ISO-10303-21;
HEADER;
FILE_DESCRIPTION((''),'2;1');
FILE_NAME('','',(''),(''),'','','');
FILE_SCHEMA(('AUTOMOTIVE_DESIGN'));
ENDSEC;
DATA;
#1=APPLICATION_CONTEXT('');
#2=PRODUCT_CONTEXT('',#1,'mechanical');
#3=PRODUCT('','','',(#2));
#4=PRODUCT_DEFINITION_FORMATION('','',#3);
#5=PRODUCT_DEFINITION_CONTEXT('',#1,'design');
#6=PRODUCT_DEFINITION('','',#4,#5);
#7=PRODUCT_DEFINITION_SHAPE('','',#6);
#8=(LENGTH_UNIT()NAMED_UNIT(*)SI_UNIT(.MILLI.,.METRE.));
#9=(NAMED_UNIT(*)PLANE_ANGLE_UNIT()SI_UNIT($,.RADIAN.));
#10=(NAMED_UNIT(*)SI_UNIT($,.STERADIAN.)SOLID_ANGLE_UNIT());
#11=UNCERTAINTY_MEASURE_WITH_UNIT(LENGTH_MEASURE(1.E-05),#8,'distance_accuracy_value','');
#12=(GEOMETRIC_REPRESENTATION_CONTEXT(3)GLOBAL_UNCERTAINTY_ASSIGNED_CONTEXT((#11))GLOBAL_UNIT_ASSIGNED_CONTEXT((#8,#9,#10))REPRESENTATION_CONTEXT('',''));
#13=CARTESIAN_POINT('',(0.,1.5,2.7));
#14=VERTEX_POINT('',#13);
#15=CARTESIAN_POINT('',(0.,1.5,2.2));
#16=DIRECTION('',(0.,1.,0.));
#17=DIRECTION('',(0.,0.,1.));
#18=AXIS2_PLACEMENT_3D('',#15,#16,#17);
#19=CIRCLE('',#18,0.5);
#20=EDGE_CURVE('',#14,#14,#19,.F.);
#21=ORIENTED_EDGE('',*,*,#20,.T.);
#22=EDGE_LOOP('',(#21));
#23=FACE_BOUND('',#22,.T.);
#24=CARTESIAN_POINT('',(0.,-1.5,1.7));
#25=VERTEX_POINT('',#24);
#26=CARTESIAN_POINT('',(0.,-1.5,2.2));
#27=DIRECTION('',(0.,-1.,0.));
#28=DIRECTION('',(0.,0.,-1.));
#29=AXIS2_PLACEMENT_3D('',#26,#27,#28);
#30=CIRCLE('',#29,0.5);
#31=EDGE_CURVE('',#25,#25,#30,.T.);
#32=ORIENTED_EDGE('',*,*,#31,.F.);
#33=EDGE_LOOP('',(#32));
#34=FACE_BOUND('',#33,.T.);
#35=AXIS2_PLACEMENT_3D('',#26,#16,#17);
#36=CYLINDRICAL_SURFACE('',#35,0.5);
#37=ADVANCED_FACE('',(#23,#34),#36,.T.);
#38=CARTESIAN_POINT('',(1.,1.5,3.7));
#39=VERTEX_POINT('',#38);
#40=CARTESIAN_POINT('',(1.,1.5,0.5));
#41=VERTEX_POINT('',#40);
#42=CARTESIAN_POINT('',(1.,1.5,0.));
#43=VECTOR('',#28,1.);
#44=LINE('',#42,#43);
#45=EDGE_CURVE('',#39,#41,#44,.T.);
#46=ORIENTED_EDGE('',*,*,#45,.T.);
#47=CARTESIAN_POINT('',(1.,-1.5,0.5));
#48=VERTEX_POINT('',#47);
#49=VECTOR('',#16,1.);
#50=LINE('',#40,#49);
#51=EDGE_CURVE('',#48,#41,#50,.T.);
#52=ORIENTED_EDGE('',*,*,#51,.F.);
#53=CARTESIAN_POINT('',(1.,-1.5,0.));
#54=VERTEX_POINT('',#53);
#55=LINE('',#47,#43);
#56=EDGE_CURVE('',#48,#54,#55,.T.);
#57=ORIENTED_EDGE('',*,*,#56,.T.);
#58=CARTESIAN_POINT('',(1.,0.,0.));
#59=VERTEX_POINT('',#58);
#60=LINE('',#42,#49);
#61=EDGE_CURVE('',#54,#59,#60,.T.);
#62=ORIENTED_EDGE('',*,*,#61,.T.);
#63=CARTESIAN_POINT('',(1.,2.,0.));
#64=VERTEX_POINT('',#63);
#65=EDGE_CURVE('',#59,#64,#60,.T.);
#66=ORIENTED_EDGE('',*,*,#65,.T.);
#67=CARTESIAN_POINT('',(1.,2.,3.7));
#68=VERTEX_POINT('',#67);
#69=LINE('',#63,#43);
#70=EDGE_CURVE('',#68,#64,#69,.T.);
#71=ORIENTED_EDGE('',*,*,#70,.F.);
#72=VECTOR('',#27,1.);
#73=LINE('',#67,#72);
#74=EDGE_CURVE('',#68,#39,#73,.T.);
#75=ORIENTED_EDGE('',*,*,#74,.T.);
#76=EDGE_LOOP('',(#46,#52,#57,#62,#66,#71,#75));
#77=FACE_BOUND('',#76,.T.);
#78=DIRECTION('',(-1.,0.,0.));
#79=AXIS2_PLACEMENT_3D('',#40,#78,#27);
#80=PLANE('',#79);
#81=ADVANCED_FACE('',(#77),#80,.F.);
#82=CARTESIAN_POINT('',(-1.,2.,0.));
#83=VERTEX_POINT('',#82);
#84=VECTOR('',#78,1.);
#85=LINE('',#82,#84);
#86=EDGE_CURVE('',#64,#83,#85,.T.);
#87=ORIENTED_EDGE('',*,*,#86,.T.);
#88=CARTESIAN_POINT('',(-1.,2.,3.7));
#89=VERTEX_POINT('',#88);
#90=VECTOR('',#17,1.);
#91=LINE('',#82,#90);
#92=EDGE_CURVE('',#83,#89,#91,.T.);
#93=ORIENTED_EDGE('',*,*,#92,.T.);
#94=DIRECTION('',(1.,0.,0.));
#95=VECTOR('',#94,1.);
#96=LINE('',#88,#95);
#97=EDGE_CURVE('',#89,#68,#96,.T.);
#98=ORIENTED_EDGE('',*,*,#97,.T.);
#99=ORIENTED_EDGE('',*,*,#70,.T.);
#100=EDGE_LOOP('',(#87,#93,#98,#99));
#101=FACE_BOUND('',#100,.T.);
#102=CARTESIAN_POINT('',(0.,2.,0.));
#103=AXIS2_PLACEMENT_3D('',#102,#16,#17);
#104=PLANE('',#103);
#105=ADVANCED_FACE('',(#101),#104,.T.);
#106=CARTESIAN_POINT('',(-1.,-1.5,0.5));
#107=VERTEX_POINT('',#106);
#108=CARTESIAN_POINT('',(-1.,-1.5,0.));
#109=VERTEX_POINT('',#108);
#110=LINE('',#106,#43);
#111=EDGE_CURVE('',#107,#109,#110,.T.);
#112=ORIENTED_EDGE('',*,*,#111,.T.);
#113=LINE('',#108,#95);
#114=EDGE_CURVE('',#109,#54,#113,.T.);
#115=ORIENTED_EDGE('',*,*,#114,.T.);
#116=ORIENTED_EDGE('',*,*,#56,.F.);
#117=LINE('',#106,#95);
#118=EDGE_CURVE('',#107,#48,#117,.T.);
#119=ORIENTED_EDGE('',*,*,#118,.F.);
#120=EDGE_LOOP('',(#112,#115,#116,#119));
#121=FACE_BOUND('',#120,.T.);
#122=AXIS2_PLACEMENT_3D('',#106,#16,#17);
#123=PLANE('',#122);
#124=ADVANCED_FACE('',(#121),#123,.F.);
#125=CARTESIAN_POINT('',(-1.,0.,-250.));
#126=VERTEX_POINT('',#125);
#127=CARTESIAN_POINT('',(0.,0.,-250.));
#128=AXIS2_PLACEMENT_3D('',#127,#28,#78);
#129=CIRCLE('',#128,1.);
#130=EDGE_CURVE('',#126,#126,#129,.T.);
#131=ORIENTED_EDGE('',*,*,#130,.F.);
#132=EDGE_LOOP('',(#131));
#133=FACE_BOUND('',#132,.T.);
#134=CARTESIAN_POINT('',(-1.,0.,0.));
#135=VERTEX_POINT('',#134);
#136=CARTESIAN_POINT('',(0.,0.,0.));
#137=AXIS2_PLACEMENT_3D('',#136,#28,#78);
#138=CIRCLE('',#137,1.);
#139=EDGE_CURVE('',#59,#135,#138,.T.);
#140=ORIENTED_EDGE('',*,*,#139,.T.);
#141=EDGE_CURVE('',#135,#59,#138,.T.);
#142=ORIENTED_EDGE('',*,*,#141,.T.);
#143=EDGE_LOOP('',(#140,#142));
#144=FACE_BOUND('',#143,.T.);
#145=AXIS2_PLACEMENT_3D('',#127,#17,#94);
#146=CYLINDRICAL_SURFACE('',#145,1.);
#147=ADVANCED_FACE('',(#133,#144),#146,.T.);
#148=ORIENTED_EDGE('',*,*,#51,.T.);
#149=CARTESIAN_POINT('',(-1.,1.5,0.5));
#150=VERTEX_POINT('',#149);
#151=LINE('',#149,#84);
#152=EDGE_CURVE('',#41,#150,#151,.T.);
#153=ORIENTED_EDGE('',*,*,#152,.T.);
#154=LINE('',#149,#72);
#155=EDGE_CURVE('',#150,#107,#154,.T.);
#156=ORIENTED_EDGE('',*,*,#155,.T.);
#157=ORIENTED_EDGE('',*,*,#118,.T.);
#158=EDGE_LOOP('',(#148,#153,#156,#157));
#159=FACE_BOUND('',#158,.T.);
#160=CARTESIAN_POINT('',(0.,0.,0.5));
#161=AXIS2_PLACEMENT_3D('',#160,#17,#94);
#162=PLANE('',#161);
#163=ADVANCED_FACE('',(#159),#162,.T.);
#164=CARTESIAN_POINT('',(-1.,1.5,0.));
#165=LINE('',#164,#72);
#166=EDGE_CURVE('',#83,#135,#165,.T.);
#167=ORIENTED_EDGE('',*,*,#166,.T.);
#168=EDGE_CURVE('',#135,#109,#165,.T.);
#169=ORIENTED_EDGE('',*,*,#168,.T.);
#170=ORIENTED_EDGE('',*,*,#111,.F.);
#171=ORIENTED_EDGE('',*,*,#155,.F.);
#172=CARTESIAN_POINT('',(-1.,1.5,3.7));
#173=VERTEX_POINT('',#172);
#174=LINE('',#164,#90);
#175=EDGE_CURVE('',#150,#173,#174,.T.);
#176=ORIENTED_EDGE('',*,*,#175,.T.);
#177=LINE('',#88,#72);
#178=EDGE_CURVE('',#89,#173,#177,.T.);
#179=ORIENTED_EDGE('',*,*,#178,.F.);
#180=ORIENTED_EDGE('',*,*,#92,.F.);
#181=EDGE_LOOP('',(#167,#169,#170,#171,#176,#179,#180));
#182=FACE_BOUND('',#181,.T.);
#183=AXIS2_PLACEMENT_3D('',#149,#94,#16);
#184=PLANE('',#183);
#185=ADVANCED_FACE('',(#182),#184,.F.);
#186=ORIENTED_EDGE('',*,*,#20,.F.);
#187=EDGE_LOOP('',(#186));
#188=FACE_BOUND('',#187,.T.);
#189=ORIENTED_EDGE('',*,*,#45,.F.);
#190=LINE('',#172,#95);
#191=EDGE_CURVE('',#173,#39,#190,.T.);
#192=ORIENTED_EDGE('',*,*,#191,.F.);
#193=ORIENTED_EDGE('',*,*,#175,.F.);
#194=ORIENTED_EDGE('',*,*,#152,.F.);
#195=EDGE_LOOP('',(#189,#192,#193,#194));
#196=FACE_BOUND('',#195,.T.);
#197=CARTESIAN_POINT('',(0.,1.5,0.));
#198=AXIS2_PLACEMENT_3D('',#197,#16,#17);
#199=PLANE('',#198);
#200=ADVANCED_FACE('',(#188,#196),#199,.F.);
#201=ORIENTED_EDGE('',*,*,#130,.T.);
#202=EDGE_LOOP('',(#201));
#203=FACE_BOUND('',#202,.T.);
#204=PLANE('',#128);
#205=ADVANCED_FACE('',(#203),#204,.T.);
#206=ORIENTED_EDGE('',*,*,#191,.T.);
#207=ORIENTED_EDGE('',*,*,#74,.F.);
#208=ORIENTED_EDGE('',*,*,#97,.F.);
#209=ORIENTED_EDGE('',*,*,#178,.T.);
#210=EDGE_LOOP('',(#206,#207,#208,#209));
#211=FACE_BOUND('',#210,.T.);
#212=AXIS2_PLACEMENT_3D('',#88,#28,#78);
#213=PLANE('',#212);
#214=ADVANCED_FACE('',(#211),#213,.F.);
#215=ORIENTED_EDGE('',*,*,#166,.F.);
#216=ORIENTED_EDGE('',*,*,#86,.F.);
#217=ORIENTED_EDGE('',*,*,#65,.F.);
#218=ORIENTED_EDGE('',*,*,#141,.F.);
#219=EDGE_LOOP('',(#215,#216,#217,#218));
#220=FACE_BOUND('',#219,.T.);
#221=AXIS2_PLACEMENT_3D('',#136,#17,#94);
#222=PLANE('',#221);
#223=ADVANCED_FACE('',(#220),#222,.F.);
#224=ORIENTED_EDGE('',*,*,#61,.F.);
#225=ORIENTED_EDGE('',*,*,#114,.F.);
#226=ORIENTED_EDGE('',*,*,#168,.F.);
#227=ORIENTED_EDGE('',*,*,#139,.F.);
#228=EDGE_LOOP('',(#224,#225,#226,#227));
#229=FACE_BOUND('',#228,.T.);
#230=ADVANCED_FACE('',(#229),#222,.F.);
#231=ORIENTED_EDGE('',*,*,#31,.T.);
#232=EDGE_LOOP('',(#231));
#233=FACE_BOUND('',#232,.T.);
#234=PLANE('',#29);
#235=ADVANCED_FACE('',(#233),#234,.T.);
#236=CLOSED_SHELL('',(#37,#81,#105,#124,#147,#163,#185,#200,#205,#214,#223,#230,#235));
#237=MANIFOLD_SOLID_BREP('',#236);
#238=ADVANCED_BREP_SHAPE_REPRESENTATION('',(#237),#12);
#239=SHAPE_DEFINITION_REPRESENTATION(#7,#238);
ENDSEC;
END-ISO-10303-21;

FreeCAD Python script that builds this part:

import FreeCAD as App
import Part
import Sketcher

V = App.Vector


def add_polygon(sketch, points):
    """Adds a closed chain of lines whose ends are joined by coincident constraints."""
    first, n = sketch.GeometryCount, len(points)
    for a, b in zip(points, points[1:] + points[:1]):
        sketch.addGeometry(Part.LineSegment(App.Vector(*a, 0), App.Vector(*b, 0)), False)
    for i in range(n):
        sketch.addConstraint(Sketcher.Constraint("Coincident", first + i, 2, first + (i + 1) % n, 1))

doc = App.newDocument("Part")
body = doc.addObject("PartDesign::Body", "Body")

sketch1 = body.newObject("Sketcher::SketchObject", "Sketch")
sketch1.AttachmentSupport = (doc.getObject("XY_Plane"), [""])
sketch1.MapMode = "FlatFace"
add_polygon(sketch1, [(-1, 1.5), (-1, -1.5), (1, -1.5), (1, 1.5)])
sketch1.addConstraint(Sketcher.Constraint("Vertical", 0))
sketch1.addConstraint(Sketcher.Constraint("Horizontal", 1))
sketch1.addConstraint(Sketcher.Constraint("Vertical", 2))
sketch1.addConstraint(Sketcher.Constraint("Horizontal", 3))
sketch1.addConstraint(Sketcher.Constraint("Symmetric", 0, 2, 2, 2, -1, 1))
sketch1.addConstraint(Sketcher.Constraint("DistanceX", 1, 1, 1, 2, 2.0))
sketch1.addConstraint(Sketcher.Constraint("DistanceY", 0, 2, 0, 1, 3.0))
pad1 = body.newObject("PartDesign::Pad", "Pad")
pad1.Profile = sketch1
pad1.Length = 0.5

sketch2 = body.newObject("Sketcher::SketchObject", "Sketch001")
sketch2.AttachmentSupport = (doc.getObject("XZ_Plane"), [""])
sketch2.MapMode = "FlatFace"
sketch2.AttachmentOffset = App.Placement(V(0, 0, -1.5), App.Rotation())
add_polygon(sketch2, [(-1, 0), (-1, 3.7), (1, 3.7), (1, 0)])
sketch2.addConstraint(Sketcher.Constraint("Vertical", 0))
sketch2.addConstraint(Sketcher.Constraint("Horizontal", 1))
sketch2.addConstraint(Sketcher.Constraint("Vertical", 2))
sketch2.addConstraint(Sketcher.Constraint("Horizontal", 3))
sketch2.addConstraint(Sketcher.Constraint("Symmetric", 2, 2, 3, 2, -1, 1))
sketch2.addConstraint(Sketcher.Constraint("DistanceX", 1, 1, 1, 2, 2.0))
sketch2.addConstraint(Sketcher.Constraint("DistanceY", 0, 1, 0, 2, 3.7))
pad2 = body.newObject("PartDesign::Pad", "Pad001")
pad2.Profile = sketch2
pad2.Length = 0.5
pad2.Reversed = True

sketch3 = body.newObject("Sketcher::SketchObject", "Sketch002")
sketch3.AttachmentSupport = (doc.getObject("XY_Plane"), [""])
sketch3.MapMode = "FlatFace"
sketch3.addGeometry(Part.Circle(V(0, 0, 0), V(0, 0, 1), 1), False)
sketch3.addConstraint(Sketcher.Constraint("Coincident", 0, 3, -1, 1))
sketch3.addConstraint(Sketcher.Constraint("Diameter", 0, 2.0))
pad3 = body.newObject("PartDesign::Pad", "Pad002")
pad3.Profile = sketch3
pad3.Length = 250
pad3.Reversed = True

sketch4 = body.newObject("Sketcher::SketchObject", "Sketch003")
sketch4.AttachmentSupport = (doc.getObject("XZ_Plane"), [""])
sketch4.MapMode = "FlatFace"
sketch4.AttachmentOffset = App.Placement(V(0, 0, -1.5), App.Rotation())
sketch4.addGeometry(Part.Circle(V(0, 2.2, 0), V(0, 0, 1), 0.5), False)
sketch4.addConstraint(Sketcher.Constraint("PointOnObject", 0, 3, -2))
sketch4.addConstraint(Sketcher.Constraint("Diameter", 0, 1.0))
sketch4.addConstraint(Sketcher.Constraint("DistanceY", -1, 1, 0, 3, 2.2))
pad4 = body.newObject("PartDesign::Pad", "Pad003")
pad4.Profile = sketch4
pad4.Length = 3

doc.recompute()
